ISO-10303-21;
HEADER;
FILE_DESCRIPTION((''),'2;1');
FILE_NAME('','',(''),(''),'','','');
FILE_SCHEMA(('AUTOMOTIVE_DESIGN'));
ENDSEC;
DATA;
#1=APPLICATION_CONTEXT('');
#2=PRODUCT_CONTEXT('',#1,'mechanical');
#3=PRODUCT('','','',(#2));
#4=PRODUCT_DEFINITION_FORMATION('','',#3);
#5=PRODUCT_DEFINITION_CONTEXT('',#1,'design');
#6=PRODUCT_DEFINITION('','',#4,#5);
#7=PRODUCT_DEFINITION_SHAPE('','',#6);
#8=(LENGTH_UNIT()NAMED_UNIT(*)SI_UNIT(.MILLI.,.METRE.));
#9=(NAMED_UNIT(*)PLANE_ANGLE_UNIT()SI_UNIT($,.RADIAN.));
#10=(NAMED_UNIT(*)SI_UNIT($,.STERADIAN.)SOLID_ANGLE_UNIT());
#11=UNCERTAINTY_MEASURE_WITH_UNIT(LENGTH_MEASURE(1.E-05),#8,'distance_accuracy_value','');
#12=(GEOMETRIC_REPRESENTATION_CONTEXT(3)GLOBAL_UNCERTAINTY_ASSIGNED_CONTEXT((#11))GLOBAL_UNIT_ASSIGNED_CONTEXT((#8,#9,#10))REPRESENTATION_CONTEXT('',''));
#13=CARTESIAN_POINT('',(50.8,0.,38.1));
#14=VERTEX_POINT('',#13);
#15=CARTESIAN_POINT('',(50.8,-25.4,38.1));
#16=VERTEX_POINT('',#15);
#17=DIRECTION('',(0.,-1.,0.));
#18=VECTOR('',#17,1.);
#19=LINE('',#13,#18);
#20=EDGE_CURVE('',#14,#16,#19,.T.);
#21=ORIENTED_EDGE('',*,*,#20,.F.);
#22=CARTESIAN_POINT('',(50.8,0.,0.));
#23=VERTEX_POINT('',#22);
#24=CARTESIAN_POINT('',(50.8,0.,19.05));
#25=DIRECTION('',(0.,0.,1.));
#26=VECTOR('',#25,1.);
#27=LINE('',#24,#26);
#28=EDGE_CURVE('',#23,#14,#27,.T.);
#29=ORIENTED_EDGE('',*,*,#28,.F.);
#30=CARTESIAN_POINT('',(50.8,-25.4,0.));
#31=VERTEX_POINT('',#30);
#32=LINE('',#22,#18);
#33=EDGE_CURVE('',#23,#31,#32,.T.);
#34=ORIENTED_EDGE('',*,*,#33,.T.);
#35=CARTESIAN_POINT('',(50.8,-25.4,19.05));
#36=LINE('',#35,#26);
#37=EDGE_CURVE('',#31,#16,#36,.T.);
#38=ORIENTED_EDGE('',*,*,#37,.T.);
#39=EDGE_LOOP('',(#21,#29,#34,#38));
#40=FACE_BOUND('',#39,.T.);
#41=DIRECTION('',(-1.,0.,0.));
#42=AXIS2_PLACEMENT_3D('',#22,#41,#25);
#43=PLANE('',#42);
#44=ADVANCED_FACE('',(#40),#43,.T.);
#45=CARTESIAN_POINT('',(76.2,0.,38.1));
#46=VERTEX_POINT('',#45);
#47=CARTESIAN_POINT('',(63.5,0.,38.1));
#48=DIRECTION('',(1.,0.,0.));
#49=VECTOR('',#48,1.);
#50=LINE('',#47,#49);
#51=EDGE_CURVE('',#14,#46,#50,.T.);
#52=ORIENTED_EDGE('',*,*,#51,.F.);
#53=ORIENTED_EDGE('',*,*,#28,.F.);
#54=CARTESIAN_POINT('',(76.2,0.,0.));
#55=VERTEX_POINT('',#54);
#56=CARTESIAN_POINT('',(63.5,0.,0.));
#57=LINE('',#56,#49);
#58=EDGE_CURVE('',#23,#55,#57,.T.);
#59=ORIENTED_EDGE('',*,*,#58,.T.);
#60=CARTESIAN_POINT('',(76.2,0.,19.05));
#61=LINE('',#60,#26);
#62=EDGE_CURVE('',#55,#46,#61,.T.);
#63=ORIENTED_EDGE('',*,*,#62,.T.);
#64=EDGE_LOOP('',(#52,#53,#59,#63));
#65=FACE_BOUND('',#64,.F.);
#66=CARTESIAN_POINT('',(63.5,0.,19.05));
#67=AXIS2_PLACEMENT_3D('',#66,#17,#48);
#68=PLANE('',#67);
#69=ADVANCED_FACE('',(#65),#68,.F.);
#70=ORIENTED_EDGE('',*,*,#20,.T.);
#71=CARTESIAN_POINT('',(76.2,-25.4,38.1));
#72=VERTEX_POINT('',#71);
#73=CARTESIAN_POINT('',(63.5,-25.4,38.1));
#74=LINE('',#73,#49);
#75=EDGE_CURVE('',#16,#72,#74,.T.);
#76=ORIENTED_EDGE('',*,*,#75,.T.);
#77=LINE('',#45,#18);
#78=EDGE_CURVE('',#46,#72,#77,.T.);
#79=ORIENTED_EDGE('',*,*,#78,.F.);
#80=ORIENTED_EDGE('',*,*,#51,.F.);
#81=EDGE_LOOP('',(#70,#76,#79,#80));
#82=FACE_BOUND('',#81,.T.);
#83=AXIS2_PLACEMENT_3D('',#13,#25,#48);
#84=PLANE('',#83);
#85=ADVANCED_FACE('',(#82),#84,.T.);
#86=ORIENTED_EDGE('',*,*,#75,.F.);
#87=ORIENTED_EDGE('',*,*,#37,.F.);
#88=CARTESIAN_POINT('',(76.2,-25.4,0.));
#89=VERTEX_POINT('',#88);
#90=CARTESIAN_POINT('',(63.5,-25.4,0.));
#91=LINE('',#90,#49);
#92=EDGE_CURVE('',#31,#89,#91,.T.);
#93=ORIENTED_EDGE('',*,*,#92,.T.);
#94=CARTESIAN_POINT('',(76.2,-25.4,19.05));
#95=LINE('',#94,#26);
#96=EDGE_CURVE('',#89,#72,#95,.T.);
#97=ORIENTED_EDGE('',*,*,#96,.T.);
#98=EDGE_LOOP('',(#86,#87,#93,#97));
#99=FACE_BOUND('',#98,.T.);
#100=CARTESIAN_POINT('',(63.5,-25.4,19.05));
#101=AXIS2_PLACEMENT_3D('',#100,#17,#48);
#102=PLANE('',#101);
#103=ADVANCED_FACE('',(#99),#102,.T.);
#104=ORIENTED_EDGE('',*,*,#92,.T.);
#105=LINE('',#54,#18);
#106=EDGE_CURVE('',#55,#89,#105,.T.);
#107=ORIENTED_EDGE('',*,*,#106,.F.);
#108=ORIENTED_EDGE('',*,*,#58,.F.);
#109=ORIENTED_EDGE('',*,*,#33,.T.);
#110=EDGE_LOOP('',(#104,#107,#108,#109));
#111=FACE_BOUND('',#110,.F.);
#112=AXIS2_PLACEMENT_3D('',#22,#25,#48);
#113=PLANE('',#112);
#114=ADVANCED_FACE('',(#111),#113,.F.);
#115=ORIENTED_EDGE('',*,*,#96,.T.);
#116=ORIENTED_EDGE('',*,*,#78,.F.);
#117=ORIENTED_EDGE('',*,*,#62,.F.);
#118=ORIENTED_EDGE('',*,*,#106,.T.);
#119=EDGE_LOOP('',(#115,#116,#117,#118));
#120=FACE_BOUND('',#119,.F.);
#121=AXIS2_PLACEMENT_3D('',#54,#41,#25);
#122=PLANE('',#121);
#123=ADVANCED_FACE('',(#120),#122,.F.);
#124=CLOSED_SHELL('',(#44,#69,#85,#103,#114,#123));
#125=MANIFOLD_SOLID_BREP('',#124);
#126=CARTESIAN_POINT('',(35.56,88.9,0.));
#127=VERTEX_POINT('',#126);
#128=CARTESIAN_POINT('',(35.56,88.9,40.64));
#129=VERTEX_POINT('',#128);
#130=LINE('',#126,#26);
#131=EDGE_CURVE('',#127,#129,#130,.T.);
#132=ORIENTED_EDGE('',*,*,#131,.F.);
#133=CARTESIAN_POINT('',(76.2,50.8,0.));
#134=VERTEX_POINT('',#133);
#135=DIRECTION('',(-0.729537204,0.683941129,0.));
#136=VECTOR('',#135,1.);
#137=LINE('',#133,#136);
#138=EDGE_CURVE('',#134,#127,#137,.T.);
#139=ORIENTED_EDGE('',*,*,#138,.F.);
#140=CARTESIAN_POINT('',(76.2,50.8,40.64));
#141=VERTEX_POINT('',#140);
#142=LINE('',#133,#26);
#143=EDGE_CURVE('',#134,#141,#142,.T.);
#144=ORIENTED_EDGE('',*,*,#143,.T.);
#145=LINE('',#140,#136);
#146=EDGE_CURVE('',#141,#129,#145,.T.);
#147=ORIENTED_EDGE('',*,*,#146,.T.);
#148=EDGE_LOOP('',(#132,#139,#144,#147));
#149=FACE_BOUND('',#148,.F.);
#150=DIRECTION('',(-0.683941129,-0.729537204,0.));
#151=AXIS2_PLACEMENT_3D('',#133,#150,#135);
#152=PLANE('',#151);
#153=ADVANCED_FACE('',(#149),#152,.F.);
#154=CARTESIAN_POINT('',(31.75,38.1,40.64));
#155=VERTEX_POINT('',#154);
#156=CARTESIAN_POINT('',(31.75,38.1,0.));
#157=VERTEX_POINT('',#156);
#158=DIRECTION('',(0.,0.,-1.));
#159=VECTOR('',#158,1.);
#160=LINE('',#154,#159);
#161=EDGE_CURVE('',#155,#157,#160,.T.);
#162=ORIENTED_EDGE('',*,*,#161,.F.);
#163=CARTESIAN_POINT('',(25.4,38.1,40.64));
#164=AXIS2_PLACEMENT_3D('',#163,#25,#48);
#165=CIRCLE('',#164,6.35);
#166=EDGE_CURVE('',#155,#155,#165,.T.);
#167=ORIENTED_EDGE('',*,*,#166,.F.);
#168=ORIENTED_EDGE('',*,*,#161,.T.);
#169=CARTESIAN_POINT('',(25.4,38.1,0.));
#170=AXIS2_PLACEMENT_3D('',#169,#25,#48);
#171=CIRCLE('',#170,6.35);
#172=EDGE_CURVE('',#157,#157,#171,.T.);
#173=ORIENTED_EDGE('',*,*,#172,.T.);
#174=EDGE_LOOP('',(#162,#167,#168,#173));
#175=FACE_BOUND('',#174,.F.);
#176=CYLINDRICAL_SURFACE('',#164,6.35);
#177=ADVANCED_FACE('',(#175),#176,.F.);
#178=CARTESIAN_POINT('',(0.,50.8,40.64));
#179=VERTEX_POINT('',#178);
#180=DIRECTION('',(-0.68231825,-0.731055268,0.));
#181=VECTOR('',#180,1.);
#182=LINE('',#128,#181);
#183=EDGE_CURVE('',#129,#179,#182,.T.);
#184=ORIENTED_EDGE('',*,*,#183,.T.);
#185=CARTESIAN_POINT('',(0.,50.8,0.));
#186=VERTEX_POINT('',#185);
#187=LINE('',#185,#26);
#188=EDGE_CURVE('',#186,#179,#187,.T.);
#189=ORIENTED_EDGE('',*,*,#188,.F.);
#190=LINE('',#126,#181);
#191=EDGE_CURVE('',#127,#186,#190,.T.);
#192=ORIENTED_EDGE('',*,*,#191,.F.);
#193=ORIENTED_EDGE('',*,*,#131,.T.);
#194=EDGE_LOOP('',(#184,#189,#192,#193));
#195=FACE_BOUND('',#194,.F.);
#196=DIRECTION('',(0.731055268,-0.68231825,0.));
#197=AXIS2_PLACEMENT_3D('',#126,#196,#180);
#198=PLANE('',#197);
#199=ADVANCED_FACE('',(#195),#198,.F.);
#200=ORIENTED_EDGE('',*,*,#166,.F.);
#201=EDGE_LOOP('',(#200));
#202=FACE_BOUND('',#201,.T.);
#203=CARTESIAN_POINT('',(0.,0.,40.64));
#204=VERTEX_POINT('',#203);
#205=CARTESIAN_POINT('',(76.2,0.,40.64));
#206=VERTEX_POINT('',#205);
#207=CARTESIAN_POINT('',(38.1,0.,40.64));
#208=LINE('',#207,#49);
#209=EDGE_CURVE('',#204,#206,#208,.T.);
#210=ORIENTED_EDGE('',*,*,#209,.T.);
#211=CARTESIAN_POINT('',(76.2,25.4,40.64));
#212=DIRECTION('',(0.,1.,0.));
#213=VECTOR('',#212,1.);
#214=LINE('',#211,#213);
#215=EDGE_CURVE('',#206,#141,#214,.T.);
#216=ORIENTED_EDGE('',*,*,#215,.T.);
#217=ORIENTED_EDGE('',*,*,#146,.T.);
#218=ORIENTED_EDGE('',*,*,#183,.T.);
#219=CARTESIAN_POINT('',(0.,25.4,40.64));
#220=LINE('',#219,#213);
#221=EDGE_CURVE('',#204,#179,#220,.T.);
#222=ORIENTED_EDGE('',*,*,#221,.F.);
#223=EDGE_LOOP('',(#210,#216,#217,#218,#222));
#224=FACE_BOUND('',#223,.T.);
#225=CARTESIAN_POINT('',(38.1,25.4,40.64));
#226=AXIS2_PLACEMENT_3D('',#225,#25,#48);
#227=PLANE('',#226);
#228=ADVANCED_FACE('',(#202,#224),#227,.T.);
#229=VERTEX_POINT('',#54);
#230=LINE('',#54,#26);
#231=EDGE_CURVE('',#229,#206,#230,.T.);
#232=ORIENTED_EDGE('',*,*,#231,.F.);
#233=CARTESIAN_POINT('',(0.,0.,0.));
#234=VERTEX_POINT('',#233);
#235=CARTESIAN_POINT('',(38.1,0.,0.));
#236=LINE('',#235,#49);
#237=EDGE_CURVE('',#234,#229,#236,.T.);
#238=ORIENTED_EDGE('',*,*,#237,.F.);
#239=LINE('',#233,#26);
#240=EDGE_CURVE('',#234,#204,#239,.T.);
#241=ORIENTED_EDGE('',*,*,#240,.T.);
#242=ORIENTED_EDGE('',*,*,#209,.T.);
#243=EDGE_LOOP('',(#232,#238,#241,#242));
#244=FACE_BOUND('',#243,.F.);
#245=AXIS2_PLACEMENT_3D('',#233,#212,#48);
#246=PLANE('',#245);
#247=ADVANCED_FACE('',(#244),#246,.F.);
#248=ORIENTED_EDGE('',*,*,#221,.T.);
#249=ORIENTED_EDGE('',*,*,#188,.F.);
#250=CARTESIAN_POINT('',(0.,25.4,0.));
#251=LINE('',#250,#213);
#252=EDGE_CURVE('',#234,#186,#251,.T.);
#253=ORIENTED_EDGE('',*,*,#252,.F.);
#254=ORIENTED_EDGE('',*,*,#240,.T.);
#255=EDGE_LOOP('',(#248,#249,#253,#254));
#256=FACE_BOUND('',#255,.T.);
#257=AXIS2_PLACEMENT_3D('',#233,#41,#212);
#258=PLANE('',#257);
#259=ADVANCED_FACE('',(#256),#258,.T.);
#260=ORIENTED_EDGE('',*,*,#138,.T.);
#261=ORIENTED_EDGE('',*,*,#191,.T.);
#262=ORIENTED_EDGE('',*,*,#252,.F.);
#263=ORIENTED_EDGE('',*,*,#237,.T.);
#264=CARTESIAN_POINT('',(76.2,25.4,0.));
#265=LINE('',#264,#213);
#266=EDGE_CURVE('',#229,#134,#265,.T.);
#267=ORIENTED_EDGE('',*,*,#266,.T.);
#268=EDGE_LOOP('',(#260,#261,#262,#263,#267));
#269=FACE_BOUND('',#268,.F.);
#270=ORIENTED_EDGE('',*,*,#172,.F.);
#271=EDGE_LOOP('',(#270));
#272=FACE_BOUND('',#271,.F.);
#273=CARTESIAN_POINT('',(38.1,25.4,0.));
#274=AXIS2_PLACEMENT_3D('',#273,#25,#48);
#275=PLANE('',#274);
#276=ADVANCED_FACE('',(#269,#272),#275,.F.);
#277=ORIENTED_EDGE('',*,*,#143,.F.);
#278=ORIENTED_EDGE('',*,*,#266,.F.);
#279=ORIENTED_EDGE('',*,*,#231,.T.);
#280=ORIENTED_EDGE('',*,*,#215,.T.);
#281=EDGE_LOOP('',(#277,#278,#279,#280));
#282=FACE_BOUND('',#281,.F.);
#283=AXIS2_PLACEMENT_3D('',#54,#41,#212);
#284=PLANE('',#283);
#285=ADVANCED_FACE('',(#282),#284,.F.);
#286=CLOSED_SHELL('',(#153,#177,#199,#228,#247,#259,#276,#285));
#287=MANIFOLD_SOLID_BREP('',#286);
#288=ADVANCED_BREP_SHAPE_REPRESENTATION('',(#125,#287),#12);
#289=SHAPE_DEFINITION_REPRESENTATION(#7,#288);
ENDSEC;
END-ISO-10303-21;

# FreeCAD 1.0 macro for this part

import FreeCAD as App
import Part
import Sketcher

V = App.Vector
Q = App.Units.Quantity


def add_polygon(sketch, points):
    """Adds a closed chain of lines whose ends are joined by coincident constraints."""
    first, n = sketch.GeometryCount, len(points)
    for a, b in zip(points, points[1:] + points[:1]):
        sketch.addGeometry(Part.LineSegment(App.Vector(*a, 0), App.Vector(*b, 0)), False)
    for i in range(n):
        sketch.addConstraint(Sketcher.Constraint("Coincident", first + i, 2, first + (i + 1) % n, 1))

doc = App.newDocument("Part")
params = doc.addObject("Spreadsheet::Sheet", "Params")
for row, (alias, value) in enumerate([
    ("sketch1_width", "3 in"),
    ("sketch1_height", "2 in"),
    ("pad1_length", "1.6 in"),
    ("sketch2_diameter", "0.5 in"),
    ("sketch3_width", "1 in"),
    ("sketch3_height", "1.5 in"),
    ("pad2_length", "1 in"),
], start=1):
    params.set(f"A{row}", alias)
    params.set(f"B{row}", "=" + value)
    params.setAlias(f"B{row}", alias)

body = doc.addObject("PartDesign::Body", "Body")

sketch1 = body.newObject("Sketcher::SketchObject", "Sketch")
sketch1.AttachmentSupport = (doc.getObject("XY_Plane"), [""])
sketch1.MapMode = "FlatFace"
add_polygon(sketch1, [(0, 51), (0, 0), (76, 0), (76, 51), (36, 89)])
sketch1.addConstraint(Sketcher.Constraint("Vertical", 0))
sketch1.addConstraint(Sketcher.Constraint("Horizontal", 1))
sketch1.addConstraint(Sketcher.Constraint("Vertical", 2))
sketch1.addConstraint(Sketcher.Constraint("Coincident", 0, 2, -1, 1))
sketch1.addConstraint(Sketcher.Constraint("Horizontal", 2, 2, 4, 2))
sketch1.addConstraint(Sketcher.Constraint("DistanceX", 1, 1, 1, 2, Q("3 in")))
sketch1.addConstraint(Sketcher.Constraint("DistanceY", 0, 2, 0, 1, Q("2 in")))
sketch1.addConstraint(Sketcher.Constraint("DistanceX", -1, 1, 3, 2, Q("1.4 in")))
sketch1.addConstraint(Sketcher.Constraint("DistanceY", -1, 1, 3, 2, Q("3.5 in")))
sketch1.setExpression("Constraints[10]", "Params.sketch1_width")
sketch1.setExpression("Constraints[11]", "Params.sketch1_height")
pad1 = body.newObject("PartDesign::Pad", "Pad")
pad1.Profile = sketch1
pad1.setExpression("Length", "Params.pad1_length")

sketch2 = body.newObject("Sketcher::SketchObject", "Sketch001")
sketch2.AttachmentSupport = (doc.getObject("XY_Plane"), [""])
sketch2.MapMode = "FlatFace"
sketch2.AttachmentOffset = App.Placement(V(0, 0, 1.6 * 25.4), App.Rotation())
sketch2.addGeometry(Part.Circle(V(25, 38, 0), V(0, 0, 1), 6), False)
sketch2.addConstraint(Sketcher.Constraint("Diameter", 0, Q("0.5 in")))
sketch2.addConstraint(Sketcher.Constraint("DistanceX", -1, 1, 0, 3, Q("1 in")))
sketch2.addConstraint(Sketcher.Constraint("DistanceY", -1, 1, 0, 3, Q("1.5 in")))
sketch2.setExpression("Constraints[0]", "Params.sketch2_diameter")
pocket1 = body.newObject("PartDesign::Pocket", "Pocket")
pocket1.Profile = sketch2
pocket1.Type = "ThroughAll"
body2 = doc.addObject("PartDesign::Body", "Body001")

sketch3 = body2.newObject("Sketcher::SketchObject", "Sketch002")
sketch3.AttachmentSupport = (doc.getObject("XZ_Plane001"), [""])
sketch3.MapMode = "FlatFace"
add_polygon(sketch3, [(51, 38), (51, 0), (76, 0), (76, 38)])
sketch3.addConstraint(Sketcher.Constraint("Vertical", 0))
sketch3.addConstraint(Sketcher.Constraint("Horizontal", 1))
sketch3.addConstraint(Sketcher.Constraint("Vertical", 2))
sketch3.addConstraint(Sketcher.Constraint("Horizontal", 3))
sketch3.addConstraint(Sketcher.Constraint("PointOnObject", 0, 2, -1))
sketch3.addConstraint(Sketcher.Constraint("DistanceX", 1, 1, 1, 2, Q("1 in")))
sketch3.addConstraint(Sketcher.Constraint("DistanceY", 0, 2, 0, 1, Q("1.5 in")))
sketch3.addConstraint(Sketcher.Constraint("DistanceX", -1, 1, 0, 2, Q("2 in")))
sketch3.setExpression("Constraints[9]", "Params.sketch3_width")
sketch3.setExpression("Constraints[10]", "Params.sketch3_height")
pad2 = body2.newObject("PartDesign::Pad", "Pad001")
pad2.Profile = sketch3
pad2.setExpression("Length", "Params.pad2_length")

doc.recompute()
